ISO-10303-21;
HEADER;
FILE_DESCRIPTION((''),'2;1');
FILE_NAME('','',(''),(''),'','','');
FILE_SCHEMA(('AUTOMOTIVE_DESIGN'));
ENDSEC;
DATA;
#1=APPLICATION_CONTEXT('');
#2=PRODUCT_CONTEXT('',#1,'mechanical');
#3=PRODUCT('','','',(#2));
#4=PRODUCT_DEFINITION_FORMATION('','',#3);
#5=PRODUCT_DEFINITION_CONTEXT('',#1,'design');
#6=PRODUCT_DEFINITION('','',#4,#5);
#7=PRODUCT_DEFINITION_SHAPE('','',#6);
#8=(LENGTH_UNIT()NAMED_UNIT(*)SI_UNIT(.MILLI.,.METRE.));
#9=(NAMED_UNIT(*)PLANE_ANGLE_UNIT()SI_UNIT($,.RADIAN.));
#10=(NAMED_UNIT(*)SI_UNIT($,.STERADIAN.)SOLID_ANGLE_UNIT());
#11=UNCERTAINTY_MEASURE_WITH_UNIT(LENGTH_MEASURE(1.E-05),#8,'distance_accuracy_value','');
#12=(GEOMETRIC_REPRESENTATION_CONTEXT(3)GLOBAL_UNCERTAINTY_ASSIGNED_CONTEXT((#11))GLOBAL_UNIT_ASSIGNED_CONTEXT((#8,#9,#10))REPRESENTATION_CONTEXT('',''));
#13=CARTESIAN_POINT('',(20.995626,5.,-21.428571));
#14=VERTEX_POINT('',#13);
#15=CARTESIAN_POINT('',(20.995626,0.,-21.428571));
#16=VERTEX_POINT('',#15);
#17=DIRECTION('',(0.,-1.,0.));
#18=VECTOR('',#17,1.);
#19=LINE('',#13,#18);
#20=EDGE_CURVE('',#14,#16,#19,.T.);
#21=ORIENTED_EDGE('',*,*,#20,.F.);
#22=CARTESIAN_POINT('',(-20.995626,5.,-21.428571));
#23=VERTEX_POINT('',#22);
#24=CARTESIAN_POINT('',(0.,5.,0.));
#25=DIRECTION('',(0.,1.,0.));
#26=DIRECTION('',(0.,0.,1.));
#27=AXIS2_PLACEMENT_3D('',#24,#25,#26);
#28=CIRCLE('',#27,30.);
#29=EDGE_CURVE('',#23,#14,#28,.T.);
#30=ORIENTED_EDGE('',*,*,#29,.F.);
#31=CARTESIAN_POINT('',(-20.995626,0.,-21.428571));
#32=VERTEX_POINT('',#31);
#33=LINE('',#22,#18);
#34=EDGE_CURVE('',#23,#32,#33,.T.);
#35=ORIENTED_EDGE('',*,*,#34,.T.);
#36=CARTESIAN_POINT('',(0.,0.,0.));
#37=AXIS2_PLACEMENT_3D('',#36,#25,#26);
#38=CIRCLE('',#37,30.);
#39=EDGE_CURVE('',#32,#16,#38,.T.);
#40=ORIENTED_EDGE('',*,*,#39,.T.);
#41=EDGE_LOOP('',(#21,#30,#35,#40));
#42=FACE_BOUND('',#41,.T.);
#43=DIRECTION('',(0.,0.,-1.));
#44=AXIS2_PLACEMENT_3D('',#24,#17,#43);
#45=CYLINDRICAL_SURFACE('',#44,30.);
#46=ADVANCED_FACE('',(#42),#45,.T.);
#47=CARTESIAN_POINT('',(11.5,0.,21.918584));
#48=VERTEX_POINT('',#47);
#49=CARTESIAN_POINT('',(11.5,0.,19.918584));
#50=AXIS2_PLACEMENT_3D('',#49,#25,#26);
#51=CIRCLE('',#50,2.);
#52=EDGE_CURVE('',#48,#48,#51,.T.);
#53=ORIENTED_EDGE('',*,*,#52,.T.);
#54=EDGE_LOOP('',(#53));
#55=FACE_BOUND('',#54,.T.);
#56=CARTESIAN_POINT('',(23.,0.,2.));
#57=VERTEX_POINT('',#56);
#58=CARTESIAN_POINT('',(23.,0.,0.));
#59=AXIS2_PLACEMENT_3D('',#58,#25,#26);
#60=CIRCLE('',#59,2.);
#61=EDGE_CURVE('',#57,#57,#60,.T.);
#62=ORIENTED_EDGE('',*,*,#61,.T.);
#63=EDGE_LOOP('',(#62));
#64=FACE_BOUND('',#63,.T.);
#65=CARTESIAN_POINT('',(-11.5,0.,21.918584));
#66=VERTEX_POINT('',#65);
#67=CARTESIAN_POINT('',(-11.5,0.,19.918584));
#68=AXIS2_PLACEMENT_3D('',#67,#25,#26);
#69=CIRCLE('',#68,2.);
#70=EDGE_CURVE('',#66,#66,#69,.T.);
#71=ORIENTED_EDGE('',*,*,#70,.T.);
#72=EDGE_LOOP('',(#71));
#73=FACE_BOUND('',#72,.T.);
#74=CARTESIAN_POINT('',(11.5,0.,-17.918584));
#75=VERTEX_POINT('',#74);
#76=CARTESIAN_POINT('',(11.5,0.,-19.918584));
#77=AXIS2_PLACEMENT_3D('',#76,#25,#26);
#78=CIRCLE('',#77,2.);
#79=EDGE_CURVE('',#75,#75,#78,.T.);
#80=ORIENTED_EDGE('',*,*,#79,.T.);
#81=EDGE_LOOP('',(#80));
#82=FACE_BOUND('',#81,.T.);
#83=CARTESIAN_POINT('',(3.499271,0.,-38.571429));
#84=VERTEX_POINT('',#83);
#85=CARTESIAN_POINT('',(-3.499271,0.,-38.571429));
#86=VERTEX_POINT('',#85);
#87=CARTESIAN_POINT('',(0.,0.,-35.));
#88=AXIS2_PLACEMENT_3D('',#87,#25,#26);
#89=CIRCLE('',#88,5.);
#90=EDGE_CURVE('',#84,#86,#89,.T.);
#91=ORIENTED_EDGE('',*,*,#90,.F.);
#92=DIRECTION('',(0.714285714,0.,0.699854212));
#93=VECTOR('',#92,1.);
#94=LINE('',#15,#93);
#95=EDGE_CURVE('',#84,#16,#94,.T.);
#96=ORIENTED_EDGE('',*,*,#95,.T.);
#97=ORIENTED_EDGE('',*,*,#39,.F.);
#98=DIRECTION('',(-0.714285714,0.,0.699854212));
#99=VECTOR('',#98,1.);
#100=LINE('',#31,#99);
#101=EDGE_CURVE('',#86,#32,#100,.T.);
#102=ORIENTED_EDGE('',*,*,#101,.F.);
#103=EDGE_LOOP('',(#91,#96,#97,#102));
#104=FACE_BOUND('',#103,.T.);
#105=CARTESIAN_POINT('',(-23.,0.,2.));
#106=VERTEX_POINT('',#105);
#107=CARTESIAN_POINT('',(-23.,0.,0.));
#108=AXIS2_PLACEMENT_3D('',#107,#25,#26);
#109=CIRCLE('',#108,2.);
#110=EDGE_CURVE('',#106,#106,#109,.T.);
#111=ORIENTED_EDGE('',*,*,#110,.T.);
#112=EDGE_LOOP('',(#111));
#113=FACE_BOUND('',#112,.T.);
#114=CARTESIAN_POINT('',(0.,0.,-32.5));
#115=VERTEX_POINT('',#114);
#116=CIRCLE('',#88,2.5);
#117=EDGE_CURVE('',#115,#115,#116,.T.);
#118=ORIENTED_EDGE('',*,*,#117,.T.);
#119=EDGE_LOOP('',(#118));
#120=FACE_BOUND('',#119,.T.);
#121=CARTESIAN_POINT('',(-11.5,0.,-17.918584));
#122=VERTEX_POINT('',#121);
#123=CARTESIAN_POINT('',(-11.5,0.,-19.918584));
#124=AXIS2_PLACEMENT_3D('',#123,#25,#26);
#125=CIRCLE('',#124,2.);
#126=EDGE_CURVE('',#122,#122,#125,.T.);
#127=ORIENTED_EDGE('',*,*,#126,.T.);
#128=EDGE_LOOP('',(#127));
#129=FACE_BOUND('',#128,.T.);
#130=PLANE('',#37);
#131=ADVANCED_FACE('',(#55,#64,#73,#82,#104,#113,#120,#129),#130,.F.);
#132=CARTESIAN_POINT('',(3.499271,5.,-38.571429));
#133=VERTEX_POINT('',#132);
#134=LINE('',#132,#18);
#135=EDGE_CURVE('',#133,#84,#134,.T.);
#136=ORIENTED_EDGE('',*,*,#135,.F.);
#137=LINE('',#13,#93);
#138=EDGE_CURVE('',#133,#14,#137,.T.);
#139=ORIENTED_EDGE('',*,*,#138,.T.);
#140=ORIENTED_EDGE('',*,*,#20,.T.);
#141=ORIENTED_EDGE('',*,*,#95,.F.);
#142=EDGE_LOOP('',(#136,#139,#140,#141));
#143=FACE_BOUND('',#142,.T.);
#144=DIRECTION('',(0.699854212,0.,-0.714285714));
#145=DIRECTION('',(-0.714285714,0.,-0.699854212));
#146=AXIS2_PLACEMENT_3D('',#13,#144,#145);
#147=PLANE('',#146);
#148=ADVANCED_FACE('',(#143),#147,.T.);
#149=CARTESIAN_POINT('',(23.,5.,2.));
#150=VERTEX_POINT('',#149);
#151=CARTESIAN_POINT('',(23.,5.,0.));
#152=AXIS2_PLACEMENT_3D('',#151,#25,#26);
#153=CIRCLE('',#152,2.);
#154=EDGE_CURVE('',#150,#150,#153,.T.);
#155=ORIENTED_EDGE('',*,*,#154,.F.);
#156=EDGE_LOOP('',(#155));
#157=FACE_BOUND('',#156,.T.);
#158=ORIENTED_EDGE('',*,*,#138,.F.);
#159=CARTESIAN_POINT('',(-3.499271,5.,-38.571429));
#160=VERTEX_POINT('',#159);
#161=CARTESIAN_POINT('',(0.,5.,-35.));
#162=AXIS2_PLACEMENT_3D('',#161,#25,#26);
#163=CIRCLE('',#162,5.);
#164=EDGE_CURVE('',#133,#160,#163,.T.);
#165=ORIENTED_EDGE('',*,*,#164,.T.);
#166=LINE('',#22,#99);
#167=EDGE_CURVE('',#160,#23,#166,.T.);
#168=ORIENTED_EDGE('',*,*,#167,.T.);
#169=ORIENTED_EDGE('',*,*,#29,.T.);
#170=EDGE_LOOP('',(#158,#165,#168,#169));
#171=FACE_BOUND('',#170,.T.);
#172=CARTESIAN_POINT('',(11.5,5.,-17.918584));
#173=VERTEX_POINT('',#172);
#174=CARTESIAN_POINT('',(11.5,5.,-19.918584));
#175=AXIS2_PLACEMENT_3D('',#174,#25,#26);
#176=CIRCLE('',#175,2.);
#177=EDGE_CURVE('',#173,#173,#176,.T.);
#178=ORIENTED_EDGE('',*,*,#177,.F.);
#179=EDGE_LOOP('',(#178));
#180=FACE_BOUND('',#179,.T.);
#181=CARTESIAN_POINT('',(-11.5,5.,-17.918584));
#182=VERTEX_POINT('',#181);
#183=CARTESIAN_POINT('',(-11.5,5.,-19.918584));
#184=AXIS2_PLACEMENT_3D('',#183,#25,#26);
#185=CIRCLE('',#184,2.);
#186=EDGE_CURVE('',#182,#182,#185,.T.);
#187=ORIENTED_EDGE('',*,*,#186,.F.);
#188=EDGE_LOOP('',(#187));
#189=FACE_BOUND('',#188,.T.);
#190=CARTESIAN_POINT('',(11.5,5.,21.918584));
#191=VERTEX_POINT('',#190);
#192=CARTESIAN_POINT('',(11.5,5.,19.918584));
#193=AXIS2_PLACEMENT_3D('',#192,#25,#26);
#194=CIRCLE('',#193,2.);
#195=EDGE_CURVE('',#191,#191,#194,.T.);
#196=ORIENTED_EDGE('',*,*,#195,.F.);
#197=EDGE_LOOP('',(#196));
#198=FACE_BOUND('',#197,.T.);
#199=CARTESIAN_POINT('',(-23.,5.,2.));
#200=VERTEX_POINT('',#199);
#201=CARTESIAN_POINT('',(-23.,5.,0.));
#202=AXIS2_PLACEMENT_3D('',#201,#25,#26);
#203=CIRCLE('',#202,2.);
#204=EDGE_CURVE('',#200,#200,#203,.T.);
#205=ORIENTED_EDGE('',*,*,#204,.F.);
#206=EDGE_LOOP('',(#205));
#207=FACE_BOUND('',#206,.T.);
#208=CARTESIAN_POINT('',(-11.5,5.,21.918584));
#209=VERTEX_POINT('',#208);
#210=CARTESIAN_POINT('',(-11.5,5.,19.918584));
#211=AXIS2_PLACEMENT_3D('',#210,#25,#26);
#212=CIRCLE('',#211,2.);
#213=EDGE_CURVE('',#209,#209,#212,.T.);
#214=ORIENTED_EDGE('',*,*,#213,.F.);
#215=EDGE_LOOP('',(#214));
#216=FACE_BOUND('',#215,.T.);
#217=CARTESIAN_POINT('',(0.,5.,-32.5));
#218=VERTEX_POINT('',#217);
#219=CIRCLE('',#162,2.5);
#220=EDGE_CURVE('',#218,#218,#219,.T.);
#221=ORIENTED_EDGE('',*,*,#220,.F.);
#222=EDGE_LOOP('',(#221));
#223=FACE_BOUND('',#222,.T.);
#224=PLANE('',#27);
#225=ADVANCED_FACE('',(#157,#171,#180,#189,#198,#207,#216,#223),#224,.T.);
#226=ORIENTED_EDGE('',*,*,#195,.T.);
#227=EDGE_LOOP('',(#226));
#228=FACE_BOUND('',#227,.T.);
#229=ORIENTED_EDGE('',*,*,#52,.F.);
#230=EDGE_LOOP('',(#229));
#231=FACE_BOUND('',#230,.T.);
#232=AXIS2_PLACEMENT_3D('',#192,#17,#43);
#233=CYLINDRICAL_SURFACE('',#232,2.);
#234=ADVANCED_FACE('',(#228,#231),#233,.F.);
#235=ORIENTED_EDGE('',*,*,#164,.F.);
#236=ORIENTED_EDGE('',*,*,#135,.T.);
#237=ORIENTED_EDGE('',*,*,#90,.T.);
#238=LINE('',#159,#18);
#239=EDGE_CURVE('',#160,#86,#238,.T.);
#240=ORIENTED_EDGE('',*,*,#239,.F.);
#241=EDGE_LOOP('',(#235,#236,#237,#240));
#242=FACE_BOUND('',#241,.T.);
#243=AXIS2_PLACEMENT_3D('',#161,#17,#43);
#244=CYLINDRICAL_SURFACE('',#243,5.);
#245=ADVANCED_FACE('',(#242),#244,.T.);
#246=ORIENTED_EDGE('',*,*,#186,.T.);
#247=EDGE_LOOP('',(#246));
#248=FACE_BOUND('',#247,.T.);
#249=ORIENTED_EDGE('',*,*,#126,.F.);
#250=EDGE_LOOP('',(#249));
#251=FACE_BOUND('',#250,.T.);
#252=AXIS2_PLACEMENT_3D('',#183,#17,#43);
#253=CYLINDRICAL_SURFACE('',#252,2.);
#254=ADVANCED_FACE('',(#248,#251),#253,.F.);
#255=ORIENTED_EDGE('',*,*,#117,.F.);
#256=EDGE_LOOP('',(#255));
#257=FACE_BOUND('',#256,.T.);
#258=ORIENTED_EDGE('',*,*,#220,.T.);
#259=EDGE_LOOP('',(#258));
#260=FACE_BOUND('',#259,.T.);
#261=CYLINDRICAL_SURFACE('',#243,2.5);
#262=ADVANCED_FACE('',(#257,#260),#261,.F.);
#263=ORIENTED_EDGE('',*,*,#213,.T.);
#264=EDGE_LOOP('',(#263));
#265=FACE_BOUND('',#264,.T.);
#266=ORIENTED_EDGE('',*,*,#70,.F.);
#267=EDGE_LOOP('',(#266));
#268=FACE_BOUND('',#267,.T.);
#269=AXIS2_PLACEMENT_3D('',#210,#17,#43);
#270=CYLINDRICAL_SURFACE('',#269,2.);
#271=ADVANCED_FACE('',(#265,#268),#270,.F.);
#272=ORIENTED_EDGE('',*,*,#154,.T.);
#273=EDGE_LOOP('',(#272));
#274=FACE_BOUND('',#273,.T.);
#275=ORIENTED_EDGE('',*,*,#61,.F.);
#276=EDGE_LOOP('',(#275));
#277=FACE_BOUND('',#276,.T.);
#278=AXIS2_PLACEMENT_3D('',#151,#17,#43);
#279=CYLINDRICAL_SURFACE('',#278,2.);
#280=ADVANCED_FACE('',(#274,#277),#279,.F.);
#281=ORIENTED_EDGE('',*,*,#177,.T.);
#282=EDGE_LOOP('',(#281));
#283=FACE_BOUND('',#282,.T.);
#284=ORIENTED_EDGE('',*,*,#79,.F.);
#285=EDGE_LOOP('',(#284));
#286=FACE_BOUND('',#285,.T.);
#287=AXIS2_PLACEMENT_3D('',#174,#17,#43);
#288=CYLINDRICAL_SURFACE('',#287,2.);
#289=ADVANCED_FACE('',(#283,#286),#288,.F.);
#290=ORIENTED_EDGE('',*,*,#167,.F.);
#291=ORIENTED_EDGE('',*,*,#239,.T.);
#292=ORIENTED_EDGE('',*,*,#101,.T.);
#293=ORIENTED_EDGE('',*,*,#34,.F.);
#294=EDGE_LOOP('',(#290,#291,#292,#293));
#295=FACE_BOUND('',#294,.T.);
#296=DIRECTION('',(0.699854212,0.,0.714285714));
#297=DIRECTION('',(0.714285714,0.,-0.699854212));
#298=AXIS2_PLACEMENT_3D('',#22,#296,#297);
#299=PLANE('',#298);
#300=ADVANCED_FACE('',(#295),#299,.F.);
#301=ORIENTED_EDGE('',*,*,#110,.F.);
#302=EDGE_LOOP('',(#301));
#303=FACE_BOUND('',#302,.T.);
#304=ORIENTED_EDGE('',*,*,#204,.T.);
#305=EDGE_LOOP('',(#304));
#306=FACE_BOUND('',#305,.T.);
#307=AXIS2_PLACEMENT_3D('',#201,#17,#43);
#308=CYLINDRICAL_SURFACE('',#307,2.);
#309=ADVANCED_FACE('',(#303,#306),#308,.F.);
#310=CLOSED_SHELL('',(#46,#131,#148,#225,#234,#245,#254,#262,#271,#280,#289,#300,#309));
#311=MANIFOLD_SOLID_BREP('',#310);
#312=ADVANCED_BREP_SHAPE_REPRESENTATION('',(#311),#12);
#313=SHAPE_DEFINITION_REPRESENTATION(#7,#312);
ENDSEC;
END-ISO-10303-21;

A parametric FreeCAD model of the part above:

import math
import FreeCAD as App
import Part
import Sketcher

V = App.Vector

doc = App.newDocument("Part")
body = doc.addObject("PartDesign::Body", "Body")

# Sketch on XZ plane
sketch1 = body.newObject("Sketcher::SketchObject", "Sketch")
sketch1.AttachmentSupport = (doc.getObject("XZ_Plane"), [""])
sketch1.MapMode = "FlatFace"
sketch1.addGeometry([
    Part.ArcOfCircle(Part.Circle(V(0, 0, 0), V(0, 0, 1), 30), math.radians(0), math.radians(226)),  # 0
    Part.ArcOfCircle(Part.Circle(V(0, 0, 0), V(0, 0, 1), 30), math.radians(-46), math.radians(0)),  # 1
    Part.LineSegment(V(21, -21.4, 0), V(3.5, -38.6, 0)),  # 2
    Part.ArcOfCircle(Part.Circle(V(0, -35, 0), V(0, 0, 1), 5), math.radians(-134), math.radians(-46)),  # 3
    Part.LineSegment(V(-3.5, -38.6, 0), V(-21, -21.4, 0)),  # 4
    Part.Circle(V(-11.5, 19.9, 0), V(0, 0, 1), 2),  # 5
    Part.Circle(V(11.5, 19.9, 0), V(0, 0, 1), 2),  # 6
    Part.Circle(V(-23, 0, 0), V(0, 0, 1), 2),  # 7
    Part.Circle(V(-11.5, -19.9, 0), V(0, 0, 1), 2),  # 8
    Part.Circle(V(23, 0, 0), V(0, 0, 1), 2),  # 9
    Part.Circle(V(11.5, -19.9, 0), V(0, 0, 1), 2),  # 10
    Part.Circle(V(0, -35, 0), V(0, 0, 1), 2.5),  # 11
], False)
sketch1.addConstraint([
    Sketcher.Constraint("Tangent", 0, 1, 1, 2),
    Sketcher.Constraint("Tangent", 1, 1, 2, 1),
    Sketcher.Constraint("Tangent", 2, 2, 3, 2),
    Sketcher.Constraint("Tangent", 3, 1, 4, 1),
    Sketcher.Constraint("Tangent", 4, 2, 0, 2),
    Sketcher.Constraint("Coincident", 0, 3, -1, 1),
    Sketcher.Constraint("Coincident", 11, 3, 3, 3),
    Sketcher.Constraint("Equal", 0, 1),
    Sketcher.Constraint("Equal", 5, 6),
    Sketcher.Constraint("Equal", 6, 7),
    Sketcher.Constraint("Equal", 7, 8),
    Sketcher.Constraint("Equal", 8, 9),
    Sketcher.Constraint("Equal", 9, 10),
    Sketcher.Constraint("Symmetric", 6, 3, 8, 3, -1, 1),
    Sketcher.Constraint("Symmetric", 7, 3, 9, 3, -1, 1),
    Sketcher.Constraint("Symmetric", 5, 3, 10, 3, -1, 1),
    Sketcher.Constraint("Symmetric", 5, 3, 6, 3, -2),
    Sketcher.Constraint("PointOnObject", 3, 3, -2),
    Sketcher.Constraint("PointOnObject", 7, 3, -1),
    Sketcher.Constraint("PointOnObject", 0, 1, -1),
    Sketcher.Constraint("Diameter", 5, 4.0),
    Sketcher.Constraint("Diameter", 11, 5.0),
    Sketcher.Constraint("Radius", 0, 30.0),
    Sketcher.Constraint("Radius", 3, 5.0),
    Sketcher.Constraint("DistanceY", 3, 3, -1, 1, 35.0),
    Sketcher.Constraint("DistanceX", 7, 3, -1, 1, 23.0),
    Sketcher.Constraint("DistanceX", 5, 3, 6, 3, 23.0),
    Sketcher.Constraint("DistanceY", 8, 3, 5, 3, 39.837169),
])
pad1 = body.newObject("PartDesign::Pad", "Pad")
pad1.Profile = sketch1
pad1.Length = 5
pad1.Reversed = True

doc.recompute()
